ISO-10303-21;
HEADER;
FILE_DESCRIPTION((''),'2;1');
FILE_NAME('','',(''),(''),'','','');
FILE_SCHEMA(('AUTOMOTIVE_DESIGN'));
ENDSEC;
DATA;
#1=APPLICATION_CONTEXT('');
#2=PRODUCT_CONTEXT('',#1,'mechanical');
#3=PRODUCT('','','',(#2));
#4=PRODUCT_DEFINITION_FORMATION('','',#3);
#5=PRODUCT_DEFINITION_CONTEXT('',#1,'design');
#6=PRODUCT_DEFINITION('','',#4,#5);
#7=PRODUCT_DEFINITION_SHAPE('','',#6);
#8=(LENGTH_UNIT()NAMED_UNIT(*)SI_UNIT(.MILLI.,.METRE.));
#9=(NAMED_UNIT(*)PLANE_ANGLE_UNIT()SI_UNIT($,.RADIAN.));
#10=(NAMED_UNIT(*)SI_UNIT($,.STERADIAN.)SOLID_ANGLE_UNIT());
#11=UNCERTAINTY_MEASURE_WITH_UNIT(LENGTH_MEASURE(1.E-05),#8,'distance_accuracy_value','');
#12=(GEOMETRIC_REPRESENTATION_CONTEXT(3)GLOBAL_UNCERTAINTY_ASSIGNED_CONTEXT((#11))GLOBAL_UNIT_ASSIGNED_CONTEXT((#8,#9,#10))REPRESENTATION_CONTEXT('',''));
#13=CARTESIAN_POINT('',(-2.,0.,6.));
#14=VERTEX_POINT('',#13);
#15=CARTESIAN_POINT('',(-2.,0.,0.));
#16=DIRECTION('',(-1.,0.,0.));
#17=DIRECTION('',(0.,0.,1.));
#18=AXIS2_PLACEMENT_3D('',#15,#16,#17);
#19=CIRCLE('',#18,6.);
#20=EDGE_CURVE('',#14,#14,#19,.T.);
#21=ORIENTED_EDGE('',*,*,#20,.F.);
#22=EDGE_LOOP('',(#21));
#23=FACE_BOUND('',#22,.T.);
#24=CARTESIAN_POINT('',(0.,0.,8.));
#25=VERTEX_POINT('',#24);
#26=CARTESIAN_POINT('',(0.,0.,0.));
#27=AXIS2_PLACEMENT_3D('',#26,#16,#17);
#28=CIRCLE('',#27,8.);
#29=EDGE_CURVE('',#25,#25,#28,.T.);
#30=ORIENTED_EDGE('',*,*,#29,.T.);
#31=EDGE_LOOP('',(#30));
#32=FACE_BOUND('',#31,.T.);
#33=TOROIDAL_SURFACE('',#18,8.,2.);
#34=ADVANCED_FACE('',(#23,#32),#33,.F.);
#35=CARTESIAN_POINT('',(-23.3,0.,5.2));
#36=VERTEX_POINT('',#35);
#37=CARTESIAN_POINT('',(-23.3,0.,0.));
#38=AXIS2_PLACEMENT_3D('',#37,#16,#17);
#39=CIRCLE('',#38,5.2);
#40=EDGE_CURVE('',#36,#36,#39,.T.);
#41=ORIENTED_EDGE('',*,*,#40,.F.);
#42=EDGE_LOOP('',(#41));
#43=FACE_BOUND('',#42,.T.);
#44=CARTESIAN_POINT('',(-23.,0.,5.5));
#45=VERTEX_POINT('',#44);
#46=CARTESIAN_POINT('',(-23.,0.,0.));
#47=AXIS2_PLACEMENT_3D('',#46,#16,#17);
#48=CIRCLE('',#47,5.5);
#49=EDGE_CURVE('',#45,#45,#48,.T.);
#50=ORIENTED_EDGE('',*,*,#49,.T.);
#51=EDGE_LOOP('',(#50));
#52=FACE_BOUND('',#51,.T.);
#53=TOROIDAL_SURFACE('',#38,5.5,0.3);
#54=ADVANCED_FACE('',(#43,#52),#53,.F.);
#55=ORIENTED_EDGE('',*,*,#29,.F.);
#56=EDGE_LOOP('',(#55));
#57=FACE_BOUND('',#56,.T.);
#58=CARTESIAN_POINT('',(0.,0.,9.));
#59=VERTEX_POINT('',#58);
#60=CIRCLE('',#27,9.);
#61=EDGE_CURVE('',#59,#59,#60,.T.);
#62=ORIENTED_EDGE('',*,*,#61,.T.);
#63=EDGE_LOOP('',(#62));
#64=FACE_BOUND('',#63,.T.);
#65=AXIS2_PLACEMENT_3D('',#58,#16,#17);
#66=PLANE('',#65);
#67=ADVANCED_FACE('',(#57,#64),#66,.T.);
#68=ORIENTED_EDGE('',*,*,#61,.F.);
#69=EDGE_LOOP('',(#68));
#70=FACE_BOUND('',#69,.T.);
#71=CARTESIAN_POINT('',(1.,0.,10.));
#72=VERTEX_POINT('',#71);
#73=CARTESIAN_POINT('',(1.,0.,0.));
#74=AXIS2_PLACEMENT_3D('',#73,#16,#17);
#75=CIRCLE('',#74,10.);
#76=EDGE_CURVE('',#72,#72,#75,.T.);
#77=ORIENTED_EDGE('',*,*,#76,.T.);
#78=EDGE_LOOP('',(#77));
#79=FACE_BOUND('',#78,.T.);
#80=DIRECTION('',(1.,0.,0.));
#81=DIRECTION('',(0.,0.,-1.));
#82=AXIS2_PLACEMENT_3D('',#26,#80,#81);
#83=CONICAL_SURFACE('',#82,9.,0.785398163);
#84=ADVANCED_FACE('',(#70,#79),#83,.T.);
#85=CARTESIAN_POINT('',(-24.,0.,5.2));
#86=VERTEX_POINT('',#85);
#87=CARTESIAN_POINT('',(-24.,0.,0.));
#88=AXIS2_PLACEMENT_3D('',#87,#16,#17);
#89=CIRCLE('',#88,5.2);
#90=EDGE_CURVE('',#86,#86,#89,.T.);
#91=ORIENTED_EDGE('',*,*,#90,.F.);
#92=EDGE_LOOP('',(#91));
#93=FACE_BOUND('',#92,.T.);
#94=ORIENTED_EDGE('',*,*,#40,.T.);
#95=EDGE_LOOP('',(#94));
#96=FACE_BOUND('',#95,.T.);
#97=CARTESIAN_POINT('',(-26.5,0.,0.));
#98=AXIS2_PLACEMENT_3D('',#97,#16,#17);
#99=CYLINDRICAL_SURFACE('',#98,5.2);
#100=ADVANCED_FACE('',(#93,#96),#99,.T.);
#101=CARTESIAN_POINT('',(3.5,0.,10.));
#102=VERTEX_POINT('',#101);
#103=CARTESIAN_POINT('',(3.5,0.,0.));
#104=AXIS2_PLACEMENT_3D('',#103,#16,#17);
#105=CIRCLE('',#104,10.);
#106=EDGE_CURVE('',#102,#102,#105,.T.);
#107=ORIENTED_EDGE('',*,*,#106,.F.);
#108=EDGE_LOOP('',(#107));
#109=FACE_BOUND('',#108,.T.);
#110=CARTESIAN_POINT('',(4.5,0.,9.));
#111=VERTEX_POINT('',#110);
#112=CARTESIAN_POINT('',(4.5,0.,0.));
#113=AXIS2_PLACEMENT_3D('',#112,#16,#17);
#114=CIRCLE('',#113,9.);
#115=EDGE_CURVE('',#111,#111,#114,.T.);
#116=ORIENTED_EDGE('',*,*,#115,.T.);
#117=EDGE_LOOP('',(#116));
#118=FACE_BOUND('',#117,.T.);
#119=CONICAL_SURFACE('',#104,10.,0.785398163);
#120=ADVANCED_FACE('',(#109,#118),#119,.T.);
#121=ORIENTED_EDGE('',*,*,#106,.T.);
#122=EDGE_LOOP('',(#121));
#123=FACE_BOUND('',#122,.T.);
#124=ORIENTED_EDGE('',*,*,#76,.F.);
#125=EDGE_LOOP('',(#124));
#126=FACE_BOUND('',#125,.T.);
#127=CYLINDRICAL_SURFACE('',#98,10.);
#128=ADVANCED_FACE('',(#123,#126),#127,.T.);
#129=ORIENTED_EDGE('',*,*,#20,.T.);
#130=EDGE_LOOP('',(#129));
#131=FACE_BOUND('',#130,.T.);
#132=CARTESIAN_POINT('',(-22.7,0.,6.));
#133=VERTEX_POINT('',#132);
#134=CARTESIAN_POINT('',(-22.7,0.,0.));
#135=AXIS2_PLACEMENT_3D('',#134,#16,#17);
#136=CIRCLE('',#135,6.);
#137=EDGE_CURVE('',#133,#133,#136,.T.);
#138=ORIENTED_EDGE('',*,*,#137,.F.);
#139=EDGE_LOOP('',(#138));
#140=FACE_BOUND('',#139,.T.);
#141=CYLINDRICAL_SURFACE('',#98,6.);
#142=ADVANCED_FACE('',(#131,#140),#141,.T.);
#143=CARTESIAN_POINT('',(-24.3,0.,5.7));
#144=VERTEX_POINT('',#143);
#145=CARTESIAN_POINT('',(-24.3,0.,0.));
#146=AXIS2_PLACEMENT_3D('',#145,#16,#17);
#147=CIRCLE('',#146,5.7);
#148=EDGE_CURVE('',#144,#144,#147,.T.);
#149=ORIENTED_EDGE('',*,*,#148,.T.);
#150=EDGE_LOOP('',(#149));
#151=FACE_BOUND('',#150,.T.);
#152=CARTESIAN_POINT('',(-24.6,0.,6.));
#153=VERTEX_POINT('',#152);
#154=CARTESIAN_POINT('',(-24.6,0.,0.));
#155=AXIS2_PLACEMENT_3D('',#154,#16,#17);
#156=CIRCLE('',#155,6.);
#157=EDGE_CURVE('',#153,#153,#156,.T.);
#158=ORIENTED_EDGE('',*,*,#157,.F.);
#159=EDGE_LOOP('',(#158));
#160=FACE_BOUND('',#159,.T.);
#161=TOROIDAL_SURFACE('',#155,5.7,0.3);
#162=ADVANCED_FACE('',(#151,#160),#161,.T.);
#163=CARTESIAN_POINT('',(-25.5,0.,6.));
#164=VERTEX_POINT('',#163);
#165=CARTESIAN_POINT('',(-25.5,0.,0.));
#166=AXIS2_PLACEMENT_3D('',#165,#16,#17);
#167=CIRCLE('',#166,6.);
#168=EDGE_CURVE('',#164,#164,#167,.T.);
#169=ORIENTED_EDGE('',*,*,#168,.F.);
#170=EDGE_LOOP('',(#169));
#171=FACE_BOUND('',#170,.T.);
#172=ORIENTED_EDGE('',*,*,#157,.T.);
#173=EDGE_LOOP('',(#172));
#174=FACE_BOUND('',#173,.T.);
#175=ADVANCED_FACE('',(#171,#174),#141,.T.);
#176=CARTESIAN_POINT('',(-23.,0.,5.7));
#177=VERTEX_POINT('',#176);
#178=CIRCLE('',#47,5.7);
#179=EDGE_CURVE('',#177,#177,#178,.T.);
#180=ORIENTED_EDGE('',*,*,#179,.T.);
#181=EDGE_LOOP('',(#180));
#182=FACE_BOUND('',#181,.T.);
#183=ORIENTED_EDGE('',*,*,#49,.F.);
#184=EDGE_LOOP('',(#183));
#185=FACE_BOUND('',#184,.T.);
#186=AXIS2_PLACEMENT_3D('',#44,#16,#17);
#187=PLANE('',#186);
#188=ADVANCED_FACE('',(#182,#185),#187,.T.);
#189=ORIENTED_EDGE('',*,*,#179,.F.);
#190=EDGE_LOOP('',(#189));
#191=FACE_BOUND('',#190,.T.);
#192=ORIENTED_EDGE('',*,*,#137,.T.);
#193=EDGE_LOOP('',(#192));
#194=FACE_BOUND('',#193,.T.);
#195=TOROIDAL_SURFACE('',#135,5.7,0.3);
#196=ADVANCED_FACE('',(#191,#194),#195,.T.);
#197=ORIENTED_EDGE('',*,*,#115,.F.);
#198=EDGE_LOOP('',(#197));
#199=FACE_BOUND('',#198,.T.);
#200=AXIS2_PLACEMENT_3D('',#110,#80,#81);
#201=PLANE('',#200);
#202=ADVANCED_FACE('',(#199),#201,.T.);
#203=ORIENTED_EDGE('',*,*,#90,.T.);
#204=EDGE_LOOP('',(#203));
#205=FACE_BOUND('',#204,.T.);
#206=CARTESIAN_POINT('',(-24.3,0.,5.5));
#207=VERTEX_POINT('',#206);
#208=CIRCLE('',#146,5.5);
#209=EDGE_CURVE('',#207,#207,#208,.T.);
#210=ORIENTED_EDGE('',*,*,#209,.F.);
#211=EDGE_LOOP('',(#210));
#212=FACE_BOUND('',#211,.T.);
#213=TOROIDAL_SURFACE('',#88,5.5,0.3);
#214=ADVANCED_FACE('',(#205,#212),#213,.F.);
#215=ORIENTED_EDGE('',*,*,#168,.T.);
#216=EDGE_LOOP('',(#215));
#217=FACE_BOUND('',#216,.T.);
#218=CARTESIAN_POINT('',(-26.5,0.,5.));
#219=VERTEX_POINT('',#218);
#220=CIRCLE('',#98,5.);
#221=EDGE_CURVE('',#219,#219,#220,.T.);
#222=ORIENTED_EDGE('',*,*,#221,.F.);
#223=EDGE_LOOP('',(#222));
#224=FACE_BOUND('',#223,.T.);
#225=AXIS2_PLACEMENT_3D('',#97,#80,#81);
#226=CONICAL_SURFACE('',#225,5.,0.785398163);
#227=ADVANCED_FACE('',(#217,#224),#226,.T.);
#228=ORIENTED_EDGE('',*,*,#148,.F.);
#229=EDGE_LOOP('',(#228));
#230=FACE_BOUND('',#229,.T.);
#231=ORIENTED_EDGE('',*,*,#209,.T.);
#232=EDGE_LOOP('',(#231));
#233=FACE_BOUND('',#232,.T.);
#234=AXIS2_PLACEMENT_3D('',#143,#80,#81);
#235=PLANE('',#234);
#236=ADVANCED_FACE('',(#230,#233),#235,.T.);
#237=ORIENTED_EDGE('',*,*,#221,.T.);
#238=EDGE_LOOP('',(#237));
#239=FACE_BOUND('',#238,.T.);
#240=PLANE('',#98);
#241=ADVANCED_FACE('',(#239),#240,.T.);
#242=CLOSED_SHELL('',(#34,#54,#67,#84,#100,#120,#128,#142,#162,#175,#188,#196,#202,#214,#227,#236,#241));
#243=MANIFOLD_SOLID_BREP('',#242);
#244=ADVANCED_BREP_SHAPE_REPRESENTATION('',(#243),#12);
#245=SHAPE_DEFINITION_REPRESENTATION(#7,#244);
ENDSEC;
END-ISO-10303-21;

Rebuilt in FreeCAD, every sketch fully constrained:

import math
import FreeCAD as App
import Part
import Sketcher

V = App.Vector
Q = App.Units.Quantity

doc = App.newDocument("Part")
body = doc.addObject("PartDesign::Body", "Body")

# Sketch on XZ plane
sketch1 = doc.addObject("Sketcher::SketchObject", "Sketch")
body.addObject(sketch1)
sketch1.AttachmentSupport = (doc.XZ_Plane, [""])
sketch1.MapMode = "FlatFace"
sketch1.addGeometry(Part.LineSegment(V(1, 10, 0), V(3.5, 10, 0)), False)
sketch1.addGeometry(Part.LineSegment(V(3.5, 10, 0), V(4.5, 9, 0)), False)
sketch1.addGeometry(Part.LineSegment(V(4.5, 9, 0), V(4.5, 0, 0)), False)
sketch1.addGeometry(Part.LineSegment(V(4.5, 0, 0), V(-26.5, 0, 0)), False)
sketch1.addGeometry(Part.LineSegment(V(-26.5, 0, 0), V(-26.5, 5, 0)), False)
sketch1.addGeometry(Part.LineSegment(V(-26.5, 5, 0), V(-25.5, 6, 0)), False)
sketch1.addGeometry(Part.LineSegment(V(-25.5, 6, 0), V(-24.6, 6, 0)), False)
sketch1.addGeometry(Part.ArcOfCircle(Part.Circle(V(-24.6, 5.7, 0), V(0, 0, 1), 0.3), math.radians(0), math.radians(90)), False)
sketch1.addGeometry(Part.LineSegment(V(-24.3, 5.7, 0), V(-24.3, 5.5, 0)), False)
sketch1.addGeometry(Part.ArcOfCircle(Part.Circle(V(-24, 5.5, 0), V(0, 0, 1), 0.3), math.radians(-180), math.radians(-90)), False)
sketch1.addGeometry(Part.LineSegment(V(-24, 5.2, 0), V(-23.3, 5.2, 0)), False)
sketch1.addGeometry(Part.ArcOfCircle(Part.Circle(V(-23.3, 5.5, 0), V(0, 0, 1), 0.3), math.radians(-90), math.radians(0)), False)
sketch1.addGeometry(Part.LineSegment(V(-23, 5.5, 0), V(-23, 5.7, 0)), False)
sketch1.addGeometry(Part.ArcOfCircle(Part.Circle(V(-22.7, 5.7, 0), V(0, 0, 1), 0.3), math.radians(90), math.radians(180)), False)
sketch1.addGeometry(Part.LineSegment(V(-22.7, 6, 0), V(-2, 6, 0)), False)
sketch1.addGeometry(Part.ArcOfCircle(Part.Circle(V(-2, 8, 0), V(0, 0, 1), 2), math.radians(-90), math.radians(0)), False)
sketch1.addGeometry(Part.LineSegment(V(0, 8, 0), V(0, 9, 0)), False)
sketch1.addGeometry(Part.LineSegment(V(0, 9, 0), V(1, 10, 0)), False)
sketch1.addConstraint(Sketcher.Constraint("Coincident", 0, 2, 1, 1))
sketch1.addConstraint(Sketcher.Constraint("Coincident", 1, 2, 2, 1))
sketch1.addConstraint(Sketcher.Constraint("Coincident", 2, 2, 3, 1))
sketch1.addConstraint(Sketcher.Constraint("Coincident", 3, 2, 4, 1))
sketch1.addConstraint(Sketcher.Constraint("Coincident", 4, 2, 5, 1))
sketch1.addConstraint(Sketcher.Constraint("Coincident", 5, 2, 6, 1))
sketch1.addConstraint(Sketcher.Constraint("Tangent", 6, 2, 7, 2))
sketch1.addConstraint(Sketcher.Constraint("Tangent", 7, 1, 8, 1))
sketch1.addConstraint(Sketcher.Constraint("Tangent", 8, 2, 9, 1))
sketch1.addConstraint(Sketcher.Constraint("Tangent", 9, 2, 10, 1))
sketch1.addConstraint(Sketcher.Constraint("Tangent", 10, 2, 11, 1))
sketch1.addConstraint(Sketcher.Constraint("Tangent", 11, 2, 12, 1))
sketch1.addConstraint(Sketcher.Constraint("Tangent", 12, 2, 13, 2))
sketch1.addConstraint(Sketcher.Constraint("Tangent", 13, 1, 14, 1))
sketch1.addConstraint(Sketcher.Constraint("Tangent", 14, 2, 15, 1))
sketch1.addConstraint(Sketcher.Constraint("Tangent", 15, 2, 16, 1))
sketch1.addConstraint(Sketcher.Constraint("Coincident", 16, 2, 17, 1))
sketch1.addConstraint(Sketcher.Constraint("Coincident", 17, 2, 0, 1))
sketch1.addConstraint(Sketcher.Constraint("Horizontal", 0))
sketch1.addConstraint(Sketcher.Constraint("Vertical", 2))
sketch1.addConstraint(Sketcher.Constraint("Horizontal", 3))
sketch1.addConstraint(Sketcher.Constraint("Vertical", 4))
sketch1.addConstraint(Sketcher.Constraint("Horizontal", 6))
sketch1.addConstraint(Sketcher.Constraint("Vertical", 8))
sketch1.addConstraint(Sketcher.Constraint("Horizontal", 10))
sketch1.addConstraint(Sketcher.Constraint("Vertical", 12))
sketch1.addConstraint(Sketcher.Constraint("Horizontal", 14))
sketch1.addConstraint(Sketcher.Constraint("Vertical", 16))
sketch1.addConstraint(Sketcher.Constraint("Equal", 7, 9))
sketch1.addConstraint(Sketcher.Constraint("Equal", 9, 11))
sketch1.addConstraint(Sketcher.Constraint("Equal", 11, 13))
sketch1.addConstraint(Sketcher.Constraint("PointOnObject", 2, 2, -1))
sketch1.addConstraint(Sketcher.Constraint("PointOnObject", 15, 2, -2))
sketch1.addConstraint(Sketcher.Constraint("Perpendicular", 1, 5))
sketch1.addConstraint(Sketcher.Constraint("Parallel", 5, 17))
sketch1.addConstraint(Sketcher.Constraint("Horizontal", 7, 3, 13, 3))
sketch1.addConstraint(Sketcher.Constraint("Horizontal", 1, 2, 16, 2))
sketch1.addConstraint(Sketcher.Constraint("Equal", 1, 5))
sketch1.addConstraint(Sketcher.Constraint("Equal", 5, 17))
sketch1.addConstraint(Sketcher.Constraint("Radius", 15, Q("2 mm")))
sketch1.addConstraint(Sketcher.Constraint("Radius", 7, Q("0.3 mm")))
sketch1.addConstraint(Sketcher.Constraint("DistanceX", 3, 2, 3, 1, Q("31 mm")))
sketch1.addConstraint(Sketcher.Constraint("DistanceY", 2, 2, 2, 1, Q("9 mm")))
sketch1.addConstraint(Sketcher.Constraint("DistanceY", 4, 1, 4, 2, Q("5 mm")))
sketch1.addConstraint(Sketcher.Constraint("DistanceY", 16, 1, 16, 2, Q("1 mm")))
sketch1.addConstraint(Sketcher.Constraint("DistanceX", 0, 1, 0, 2, Q("2.5 mm")))
sketch1.addConstraint(Sketcher.Constraint("DistanceX", 6, 1, 6, 2, Q("0.9 mm")))
sketch1.addConstraint(Sketcher.Constraint("DistanceX", 10, 1, 10, 2, Q("0.7 mm")))
sketch1.addConstraint(Sketcher.Constraint("DistanceY", 8, 2, 8, 1, Q("0.2 mm")))
revolution = doc.addObject("PartDesign::Revolution", "Revolution")
body.addObject(revolution)
revolution.Profile = sketch1
revolution.ReferenceAxis = (sketch1, ["H_Axis"])
revolution.Angle = 360

doc.recompute()
